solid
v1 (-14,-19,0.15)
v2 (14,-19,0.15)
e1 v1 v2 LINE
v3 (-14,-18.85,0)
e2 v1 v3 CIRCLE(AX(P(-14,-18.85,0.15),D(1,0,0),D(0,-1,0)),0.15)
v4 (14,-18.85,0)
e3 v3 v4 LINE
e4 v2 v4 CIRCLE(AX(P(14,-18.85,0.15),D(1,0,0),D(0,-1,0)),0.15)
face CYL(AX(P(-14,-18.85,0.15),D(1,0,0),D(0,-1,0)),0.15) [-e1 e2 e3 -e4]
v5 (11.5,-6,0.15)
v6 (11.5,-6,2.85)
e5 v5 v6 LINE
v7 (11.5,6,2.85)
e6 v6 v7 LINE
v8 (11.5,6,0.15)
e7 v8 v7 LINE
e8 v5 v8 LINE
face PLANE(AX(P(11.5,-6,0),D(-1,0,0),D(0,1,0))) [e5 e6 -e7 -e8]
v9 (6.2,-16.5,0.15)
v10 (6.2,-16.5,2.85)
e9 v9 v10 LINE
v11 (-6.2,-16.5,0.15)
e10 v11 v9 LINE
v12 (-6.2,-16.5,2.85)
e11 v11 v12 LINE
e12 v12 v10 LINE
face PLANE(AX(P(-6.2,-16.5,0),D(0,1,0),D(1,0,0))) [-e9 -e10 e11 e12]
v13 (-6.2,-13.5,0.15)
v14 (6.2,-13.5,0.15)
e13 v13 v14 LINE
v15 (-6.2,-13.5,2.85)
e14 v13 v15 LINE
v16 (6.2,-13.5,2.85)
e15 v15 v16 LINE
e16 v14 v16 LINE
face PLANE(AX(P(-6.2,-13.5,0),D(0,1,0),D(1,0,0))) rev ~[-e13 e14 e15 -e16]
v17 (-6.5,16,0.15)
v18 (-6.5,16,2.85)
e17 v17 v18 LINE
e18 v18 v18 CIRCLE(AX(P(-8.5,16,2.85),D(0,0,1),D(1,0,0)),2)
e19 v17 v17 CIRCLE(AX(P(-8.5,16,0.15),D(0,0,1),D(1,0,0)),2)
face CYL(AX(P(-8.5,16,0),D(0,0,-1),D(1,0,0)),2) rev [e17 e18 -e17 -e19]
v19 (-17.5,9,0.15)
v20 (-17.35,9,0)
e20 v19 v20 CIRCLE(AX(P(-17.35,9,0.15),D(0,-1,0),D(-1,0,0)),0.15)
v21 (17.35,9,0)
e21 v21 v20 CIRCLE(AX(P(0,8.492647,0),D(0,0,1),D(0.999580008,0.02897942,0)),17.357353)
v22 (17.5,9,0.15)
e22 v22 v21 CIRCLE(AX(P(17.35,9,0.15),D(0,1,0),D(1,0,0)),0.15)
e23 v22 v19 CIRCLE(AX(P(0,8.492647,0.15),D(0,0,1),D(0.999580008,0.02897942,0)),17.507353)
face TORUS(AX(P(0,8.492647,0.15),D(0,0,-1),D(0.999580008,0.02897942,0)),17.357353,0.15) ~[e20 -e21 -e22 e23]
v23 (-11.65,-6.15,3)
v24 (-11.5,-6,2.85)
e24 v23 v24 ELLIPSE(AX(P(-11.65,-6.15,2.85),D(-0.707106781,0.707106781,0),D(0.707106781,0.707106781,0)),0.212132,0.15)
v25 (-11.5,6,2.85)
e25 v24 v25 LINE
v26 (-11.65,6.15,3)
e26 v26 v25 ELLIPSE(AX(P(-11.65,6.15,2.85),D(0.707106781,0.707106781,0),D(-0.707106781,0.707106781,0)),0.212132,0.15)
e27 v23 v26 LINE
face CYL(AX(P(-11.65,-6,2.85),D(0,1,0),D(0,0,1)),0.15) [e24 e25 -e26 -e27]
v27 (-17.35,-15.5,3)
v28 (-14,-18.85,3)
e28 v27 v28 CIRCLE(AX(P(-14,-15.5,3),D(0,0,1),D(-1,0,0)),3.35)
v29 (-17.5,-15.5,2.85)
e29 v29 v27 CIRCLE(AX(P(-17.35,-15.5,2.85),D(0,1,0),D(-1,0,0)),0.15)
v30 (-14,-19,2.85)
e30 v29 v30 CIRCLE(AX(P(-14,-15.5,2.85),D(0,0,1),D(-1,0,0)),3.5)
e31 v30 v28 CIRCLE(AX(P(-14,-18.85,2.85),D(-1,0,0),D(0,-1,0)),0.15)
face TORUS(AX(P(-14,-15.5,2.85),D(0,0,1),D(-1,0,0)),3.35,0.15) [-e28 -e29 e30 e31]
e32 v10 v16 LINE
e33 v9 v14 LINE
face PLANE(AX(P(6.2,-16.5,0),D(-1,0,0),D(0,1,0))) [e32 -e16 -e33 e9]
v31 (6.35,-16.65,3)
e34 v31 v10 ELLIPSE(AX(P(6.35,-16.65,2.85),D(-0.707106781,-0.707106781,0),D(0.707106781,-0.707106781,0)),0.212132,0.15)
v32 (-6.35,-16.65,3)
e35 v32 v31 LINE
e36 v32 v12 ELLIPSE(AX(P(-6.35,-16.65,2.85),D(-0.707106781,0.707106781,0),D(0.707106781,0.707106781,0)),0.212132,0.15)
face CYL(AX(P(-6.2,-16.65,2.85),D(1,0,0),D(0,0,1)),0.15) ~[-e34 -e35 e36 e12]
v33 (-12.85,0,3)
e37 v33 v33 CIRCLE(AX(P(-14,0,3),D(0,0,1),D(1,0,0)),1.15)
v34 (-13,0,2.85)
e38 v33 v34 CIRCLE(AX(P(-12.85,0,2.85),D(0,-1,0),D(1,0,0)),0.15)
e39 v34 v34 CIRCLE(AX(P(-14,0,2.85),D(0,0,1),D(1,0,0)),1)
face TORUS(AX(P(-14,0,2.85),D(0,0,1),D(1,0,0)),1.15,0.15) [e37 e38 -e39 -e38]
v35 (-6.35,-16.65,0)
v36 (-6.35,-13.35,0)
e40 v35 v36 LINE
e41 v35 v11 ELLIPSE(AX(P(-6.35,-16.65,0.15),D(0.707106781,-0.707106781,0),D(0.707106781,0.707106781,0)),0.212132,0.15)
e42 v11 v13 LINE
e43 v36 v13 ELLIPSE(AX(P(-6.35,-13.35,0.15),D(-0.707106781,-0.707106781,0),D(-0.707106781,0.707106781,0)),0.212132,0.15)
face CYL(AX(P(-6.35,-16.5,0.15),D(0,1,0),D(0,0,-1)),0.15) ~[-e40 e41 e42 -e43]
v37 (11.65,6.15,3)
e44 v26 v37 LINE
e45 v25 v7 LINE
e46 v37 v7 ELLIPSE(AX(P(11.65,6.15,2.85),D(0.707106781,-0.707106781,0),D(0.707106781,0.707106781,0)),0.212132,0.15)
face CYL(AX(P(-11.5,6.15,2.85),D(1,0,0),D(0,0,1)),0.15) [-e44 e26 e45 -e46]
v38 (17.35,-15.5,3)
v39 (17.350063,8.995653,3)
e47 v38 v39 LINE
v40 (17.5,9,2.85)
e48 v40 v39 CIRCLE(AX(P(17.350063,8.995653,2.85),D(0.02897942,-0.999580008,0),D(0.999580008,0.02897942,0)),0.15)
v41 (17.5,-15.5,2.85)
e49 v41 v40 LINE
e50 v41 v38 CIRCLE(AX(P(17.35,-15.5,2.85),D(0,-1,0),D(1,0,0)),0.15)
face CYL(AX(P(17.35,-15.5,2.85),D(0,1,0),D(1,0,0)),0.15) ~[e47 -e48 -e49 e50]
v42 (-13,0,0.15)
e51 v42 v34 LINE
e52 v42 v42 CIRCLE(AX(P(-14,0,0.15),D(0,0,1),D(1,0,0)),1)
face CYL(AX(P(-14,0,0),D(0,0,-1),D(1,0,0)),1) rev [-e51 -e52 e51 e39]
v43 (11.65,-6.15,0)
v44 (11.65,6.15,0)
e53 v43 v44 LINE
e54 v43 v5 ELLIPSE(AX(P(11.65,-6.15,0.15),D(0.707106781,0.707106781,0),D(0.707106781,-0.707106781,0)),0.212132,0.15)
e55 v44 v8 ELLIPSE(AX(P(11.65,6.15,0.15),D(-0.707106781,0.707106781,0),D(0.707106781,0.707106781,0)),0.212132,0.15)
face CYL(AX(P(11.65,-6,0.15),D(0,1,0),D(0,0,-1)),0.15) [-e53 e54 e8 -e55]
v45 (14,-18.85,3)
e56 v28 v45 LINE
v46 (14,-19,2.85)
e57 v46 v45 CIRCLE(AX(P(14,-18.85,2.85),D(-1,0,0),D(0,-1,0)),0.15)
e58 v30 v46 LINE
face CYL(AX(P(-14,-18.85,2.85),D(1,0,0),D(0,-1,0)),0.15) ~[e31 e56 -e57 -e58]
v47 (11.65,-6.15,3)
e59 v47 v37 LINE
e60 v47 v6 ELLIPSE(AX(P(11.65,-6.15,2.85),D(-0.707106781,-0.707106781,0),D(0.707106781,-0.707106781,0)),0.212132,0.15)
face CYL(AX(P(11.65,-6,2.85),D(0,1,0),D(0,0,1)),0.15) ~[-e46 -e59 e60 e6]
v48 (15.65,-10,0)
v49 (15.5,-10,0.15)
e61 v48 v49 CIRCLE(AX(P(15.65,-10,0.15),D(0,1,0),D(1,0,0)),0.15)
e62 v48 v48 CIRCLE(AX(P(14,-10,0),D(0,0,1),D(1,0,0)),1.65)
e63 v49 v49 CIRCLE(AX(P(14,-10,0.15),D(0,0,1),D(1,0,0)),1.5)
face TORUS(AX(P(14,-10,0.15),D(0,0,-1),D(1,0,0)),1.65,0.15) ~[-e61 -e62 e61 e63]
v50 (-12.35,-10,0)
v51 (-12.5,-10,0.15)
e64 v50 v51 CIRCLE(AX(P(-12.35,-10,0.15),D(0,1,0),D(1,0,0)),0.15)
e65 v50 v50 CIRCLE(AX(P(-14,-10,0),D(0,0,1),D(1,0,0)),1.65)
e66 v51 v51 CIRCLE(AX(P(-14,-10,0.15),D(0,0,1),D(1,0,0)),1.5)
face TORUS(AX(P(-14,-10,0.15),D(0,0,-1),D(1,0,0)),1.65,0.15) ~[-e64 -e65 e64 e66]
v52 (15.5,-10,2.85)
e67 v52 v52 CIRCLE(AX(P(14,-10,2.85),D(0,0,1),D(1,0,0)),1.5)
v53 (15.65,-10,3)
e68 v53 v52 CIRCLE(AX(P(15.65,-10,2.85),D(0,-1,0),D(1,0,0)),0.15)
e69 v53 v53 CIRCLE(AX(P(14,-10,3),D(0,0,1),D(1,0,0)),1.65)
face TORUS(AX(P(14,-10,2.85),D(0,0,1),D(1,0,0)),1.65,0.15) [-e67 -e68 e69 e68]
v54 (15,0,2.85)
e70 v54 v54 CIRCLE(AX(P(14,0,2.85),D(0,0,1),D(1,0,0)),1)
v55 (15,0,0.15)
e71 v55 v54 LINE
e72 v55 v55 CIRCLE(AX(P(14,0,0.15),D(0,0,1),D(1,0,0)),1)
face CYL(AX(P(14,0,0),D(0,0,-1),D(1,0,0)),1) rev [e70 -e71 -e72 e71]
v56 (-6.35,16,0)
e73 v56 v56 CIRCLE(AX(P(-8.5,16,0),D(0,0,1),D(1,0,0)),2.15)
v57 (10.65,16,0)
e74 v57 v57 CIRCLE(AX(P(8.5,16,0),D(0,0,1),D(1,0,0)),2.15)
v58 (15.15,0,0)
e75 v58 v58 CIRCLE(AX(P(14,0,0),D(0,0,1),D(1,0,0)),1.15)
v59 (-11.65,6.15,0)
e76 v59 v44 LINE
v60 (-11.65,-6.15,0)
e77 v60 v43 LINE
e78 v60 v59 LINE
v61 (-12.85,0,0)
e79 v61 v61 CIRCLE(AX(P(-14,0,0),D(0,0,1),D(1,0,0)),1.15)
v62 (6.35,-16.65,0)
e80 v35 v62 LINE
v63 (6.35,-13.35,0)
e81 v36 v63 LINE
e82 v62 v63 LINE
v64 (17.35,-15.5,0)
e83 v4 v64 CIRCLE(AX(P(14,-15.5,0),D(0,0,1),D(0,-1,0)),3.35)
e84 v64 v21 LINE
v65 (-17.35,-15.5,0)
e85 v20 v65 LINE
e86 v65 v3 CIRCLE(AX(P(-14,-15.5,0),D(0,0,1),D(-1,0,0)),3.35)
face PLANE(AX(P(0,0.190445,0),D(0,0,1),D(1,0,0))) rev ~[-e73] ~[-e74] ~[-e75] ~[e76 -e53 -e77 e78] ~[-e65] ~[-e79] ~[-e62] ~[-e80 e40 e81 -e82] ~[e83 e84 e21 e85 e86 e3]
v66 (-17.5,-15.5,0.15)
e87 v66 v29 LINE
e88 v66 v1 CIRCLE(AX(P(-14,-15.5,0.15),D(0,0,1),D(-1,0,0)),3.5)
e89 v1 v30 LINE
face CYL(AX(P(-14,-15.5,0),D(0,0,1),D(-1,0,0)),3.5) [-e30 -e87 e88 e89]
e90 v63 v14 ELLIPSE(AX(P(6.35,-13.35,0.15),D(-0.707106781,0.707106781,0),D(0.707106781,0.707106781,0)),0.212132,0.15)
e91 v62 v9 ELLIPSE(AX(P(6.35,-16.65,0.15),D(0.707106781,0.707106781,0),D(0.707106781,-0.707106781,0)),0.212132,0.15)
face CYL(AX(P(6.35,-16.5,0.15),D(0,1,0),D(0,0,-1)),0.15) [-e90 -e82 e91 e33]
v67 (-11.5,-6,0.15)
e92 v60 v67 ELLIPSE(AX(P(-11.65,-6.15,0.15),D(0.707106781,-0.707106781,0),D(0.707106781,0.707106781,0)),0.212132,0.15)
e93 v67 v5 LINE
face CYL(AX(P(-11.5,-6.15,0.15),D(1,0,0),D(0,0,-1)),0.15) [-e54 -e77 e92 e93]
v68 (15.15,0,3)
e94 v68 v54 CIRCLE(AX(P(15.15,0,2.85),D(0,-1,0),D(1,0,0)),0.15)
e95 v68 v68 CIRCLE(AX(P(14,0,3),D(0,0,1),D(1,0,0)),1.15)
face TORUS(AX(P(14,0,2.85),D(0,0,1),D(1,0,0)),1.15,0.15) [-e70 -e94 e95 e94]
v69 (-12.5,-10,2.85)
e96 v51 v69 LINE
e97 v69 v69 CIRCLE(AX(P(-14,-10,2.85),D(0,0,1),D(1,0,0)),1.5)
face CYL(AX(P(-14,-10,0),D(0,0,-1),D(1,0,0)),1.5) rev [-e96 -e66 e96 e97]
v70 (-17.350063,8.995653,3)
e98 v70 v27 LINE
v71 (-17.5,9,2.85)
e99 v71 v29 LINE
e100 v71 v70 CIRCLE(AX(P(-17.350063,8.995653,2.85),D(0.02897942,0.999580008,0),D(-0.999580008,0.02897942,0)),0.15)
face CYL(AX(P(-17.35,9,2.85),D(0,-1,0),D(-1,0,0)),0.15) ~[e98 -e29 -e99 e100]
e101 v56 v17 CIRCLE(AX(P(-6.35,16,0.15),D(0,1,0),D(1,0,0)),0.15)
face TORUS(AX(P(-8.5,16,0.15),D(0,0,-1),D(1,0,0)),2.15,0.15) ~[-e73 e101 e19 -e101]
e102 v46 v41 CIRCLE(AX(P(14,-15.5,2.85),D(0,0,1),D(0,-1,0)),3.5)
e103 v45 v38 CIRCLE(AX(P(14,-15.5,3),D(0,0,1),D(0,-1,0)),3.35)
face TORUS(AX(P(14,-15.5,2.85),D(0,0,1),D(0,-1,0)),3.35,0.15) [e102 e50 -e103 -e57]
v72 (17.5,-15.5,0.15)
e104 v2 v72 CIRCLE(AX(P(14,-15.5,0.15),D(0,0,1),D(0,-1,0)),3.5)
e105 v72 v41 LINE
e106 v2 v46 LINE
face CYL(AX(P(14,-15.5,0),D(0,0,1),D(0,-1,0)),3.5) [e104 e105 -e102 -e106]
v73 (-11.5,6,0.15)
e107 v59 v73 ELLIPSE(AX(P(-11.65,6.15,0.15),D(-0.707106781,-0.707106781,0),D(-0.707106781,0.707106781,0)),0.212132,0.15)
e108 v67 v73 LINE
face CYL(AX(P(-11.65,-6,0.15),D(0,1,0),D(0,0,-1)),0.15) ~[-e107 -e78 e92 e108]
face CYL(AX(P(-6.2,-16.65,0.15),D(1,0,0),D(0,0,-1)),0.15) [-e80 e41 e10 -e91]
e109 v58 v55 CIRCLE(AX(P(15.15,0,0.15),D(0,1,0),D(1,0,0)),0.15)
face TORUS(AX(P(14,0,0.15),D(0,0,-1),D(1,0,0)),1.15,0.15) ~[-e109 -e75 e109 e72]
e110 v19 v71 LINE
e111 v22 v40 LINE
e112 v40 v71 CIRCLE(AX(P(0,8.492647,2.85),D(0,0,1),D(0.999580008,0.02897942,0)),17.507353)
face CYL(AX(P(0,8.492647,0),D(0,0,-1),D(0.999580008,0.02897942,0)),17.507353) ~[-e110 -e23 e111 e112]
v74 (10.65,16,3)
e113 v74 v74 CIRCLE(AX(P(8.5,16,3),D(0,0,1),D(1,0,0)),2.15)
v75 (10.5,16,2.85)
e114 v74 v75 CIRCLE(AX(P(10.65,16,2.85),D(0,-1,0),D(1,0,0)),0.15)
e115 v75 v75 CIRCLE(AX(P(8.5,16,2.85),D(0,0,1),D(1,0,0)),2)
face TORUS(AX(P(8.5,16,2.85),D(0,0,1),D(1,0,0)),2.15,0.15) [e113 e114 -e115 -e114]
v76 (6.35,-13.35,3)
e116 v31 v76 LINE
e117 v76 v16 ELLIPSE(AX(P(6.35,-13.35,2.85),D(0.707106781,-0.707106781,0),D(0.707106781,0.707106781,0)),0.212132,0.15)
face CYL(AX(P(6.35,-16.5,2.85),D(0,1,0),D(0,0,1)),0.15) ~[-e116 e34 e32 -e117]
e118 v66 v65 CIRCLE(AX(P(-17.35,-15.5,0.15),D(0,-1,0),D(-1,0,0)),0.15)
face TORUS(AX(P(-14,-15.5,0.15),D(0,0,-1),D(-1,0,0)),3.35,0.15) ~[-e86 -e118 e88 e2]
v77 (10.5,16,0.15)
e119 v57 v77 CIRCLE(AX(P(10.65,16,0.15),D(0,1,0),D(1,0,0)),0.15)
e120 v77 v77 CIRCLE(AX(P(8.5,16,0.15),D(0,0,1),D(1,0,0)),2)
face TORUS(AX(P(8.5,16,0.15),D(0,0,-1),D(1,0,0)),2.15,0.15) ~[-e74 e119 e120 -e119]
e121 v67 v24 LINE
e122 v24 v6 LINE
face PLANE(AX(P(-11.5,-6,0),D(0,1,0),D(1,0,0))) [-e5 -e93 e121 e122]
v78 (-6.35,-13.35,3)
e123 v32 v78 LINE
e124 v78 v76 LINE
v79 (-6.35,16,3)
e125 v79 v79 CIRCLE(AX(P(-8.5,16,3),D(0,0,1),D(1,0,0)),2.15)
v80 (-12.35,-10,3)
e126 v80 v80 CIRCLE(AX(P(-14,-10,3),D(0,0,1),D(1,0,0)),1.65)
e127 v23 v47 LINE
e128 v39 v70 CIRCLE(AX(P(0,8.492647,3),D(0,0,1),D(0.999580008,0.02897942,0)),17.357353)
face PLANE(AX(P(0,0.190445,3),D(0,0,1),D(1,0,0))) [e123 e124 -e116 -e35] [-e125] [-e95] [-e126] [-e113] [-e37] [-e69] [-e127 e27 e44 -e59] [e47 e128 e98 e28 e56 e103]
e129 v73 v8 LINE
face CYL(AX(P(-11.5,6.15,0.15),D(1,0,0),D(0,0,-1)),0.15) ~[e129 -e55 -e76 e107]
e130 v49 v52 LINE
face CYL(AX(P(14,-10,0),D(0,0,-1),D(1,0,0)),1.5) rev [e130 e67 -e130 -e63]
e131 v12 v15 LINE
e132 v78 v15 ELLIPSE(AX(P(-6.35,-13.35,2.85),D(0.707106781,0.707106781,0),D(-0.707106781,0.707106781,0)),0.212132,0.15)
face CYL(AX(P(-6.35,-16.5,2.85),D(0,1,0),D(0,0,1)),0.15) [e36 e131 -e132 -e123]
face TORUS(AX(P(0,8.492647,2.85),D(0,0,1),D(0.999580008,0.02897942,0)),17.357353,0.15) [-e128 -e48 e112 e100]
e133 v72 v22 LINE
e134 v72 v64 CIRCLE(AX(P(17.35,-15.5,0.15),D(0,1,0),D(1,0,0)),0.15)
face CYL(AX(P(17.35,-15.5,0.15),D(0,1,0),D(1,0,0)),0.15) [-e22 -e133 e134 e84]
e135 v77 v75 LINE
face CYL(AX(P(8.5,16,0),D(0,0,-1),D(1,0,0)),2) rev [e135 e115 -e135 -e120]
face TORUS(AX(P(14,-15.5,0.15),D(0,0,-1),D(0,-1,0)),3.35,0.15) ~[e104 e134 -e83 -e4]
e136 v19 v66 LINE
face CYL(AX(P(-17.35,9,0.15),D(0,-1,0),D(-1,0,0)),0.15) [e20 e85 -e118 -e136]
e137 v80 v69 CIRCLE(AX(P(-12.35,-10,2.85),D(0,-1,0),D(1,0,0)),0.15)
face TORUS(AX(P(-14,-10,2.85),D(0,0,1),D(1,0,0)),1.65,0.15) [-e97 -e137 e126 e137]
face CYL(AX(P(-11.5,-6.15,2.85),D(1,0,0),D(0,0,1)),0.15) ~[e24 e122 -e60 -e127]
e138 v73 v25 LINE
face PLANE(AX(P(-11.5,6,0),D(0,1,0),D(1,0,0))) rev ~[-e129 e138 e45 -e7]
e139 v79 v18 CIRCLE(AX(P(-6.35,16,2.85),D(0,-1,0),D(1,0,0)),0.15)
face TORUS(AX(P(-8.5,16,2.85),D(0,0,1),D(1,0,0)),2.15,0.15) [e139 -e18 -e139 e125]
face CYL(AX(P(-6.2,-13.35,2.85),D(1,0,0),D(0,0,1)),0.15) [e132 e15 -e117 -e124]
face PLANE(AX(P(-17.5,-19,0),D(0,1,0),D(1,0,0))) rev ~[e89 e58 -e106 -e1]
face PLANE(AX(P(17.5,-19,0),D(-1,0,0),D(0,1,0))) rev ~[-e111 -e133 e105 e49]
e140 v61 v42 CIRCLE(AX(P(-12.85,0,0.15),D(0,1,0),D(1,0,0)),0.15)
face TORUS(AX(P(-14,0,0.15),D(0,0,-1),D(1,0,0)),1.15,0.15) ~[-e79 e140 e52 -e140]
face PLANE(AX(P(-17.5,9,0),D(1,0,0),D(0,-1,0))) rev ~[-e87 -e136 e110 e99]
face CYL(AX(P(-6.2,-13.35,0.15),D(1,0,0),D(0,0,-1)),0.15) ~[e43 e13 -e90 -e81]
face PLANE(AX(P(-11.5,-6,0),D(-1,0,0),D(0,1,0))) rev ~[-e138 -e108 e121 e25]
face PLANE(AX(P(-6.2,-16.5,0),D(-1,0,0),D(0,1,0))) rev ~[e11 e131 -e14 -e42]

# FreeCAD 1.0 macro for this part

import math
import FreeCAD as App
import Part
import Sketcher

V = App.Vector


def edges_at(feature, points):
    """Names of the edges that pass closest to the given points."""
    edges = feature.Shape.Edges
    near = lambda p: min(range(len(edges)), key=lambda i: edges[i].distToShape(Part.Vertex(*p))[0])
    return sorted({f"Edge{near(p) + 1}" for p in points})

doc = App.newDocument("Part")
body = doc.addObject("PartDesign::Body", "Body")

sketch1 = doc.addObject("Sketcher::SketchObject", "Sketch")
body.addObject(sketch1)
sketch1.AttachmentSupport = (doc.XY_Plane, [""])
sketch1.MapMode = "FlatFace"
sketch1.addGeometry(Part.LineSegment(V(-17.5, 9, 0), V(-17.5, -19, 0)), False)
sketch1.addGeometry(Part.LineSegment(V(-17.5, -19, 0), V(17.5, -19, 0)), False)
sketch1.addGeometry(Part.LineSegment(V(17.5, -19, 0), V(17.5, 9, 0)), False)
sketch1.addGeometry(Part.ArcOfCircle(Part.Circle(V(0, 8.492647, 0), V(0, 0, 1), 17.507353), math.radians(1.660631), math.radians(178.339369)), False)
sketch1.addGeometry(Part.Circle(V(-14, -10, 0), V(0, 0, 1), 1.5), False)
sketch1.addGeometry(Part.Circle(V(-14, 0, 0), V(0, 0, 1), 1), False)
sketch1.addGeometry(Part.LineSegment(V(6.2, -16.5, 0), V(-6.2, -16.5, 0)), False)
sketch1.addGeometry(Part.LineSegment(V(-6.2, -16.5, 0), V(-6.2, -13.5, 0)), False)
sketch1.addGeometry(Part.LineSegment(V(-6.2, -13.5, 0), V(6.2, -13.5, 0)), False)
sketch1.addGeometry(Part.LineSegment(V(6.2, -13.5, 0), V(6.2, -16.5, 0)), False)
sketch1.addGeometry(Part.Circle(V(14, -10, 0), V(0, 0, 1), 1.5), False)
sketch1.addGeometry(Part.LineSegment(V(11.5, -6, 0), V(-11.5, -6, 0)), False)
sketch1.addGeometry(Part.LineSegment(V(-11.5, -6, 0), V(-11.5, 6, 0)), False)
sketch1.addGeometry(Part.LineSegment(V(-11.5, 6, 0), V(11.5, 6, 0)), False)
sketch1.addGeometry(Part.LineSegment(V(11.5, 6, 0), V(11.5, -6, 0)), False)
sketch1.addGeometry(Part.Circle(V(14, 0, 0), V(0, 0, 1), 1), False)
sketch1.addGeometry(Part.Circle(V(-8.5, 16, 0), V(0, 0, 1), 2), False)
sketch1.addGeometry(Part.Circle(V(8.5, 16, 0), V(0, 0, 1), 2), False)
sketch1.addConstraint(Sketcher.Constraint("Coincident", 0, 2, 1, 1))
sketch1.addConstraint(Sketcher.Constraint("Coincident", 1, 2, 2, 1))
sketch1.addConstraint(Sketcher.Constraint("Coincident", 2, 2, 3, 1))
sketch1.addConstraint(Sketcher.Constraint("Coincident", 3, 2, 0, 1))
sketch1.addConstraint(Sketcher.Constraint("Coincident", 6, 2, 7, 1))
sketch1.addConstraint(Sketcher.Constraint("Coincident", 7, 2, 8, 1))
sketch1.addConstraint(Sketcher.Constraint("Coincident", 8, 2, 9, 1))
sketch1.addConstraint(Sketcher.Constraint("Coincident", 9, 2, 6, 1))
sketch1.addConstraint(Sketcher.Constraint("Coincident", 11, 2, 12, 1))
sketch1.addConstraint(Sketcher.Constraint("Coincident", 12, 2, 13, 1))
sketch1.addConstraint(Sketcher.Constraint("Coincident", 13, 2, 14, 1))
sketch1.addConstraint(Sketcher.Constraint("Coincident", 14, 2, 11, 1))
sketch1.addConstraint(Sketcher.Constraint("Vertical", 0))
sketch1.addConstraint(Sketcher.Constraint("Horizontal", 1))
sketch1.addConstraint(Sketcher.Constraint("Vertical", 2))
sketch1.addConstraint(Sketcher.Constraint("Horizontal", 6))
sketch1.addConstraint(Sketcher.Constraint("Vertical", 7))
sketch1.addConstraint(Sketcher.Constraint("Horizontal", 8))
sketch1.addConstraint(Sketcher.Constraint("Vertical", 9))
sketch1.addConstraint(Sketcher.Constraint("Horizontal", 11))
sketch1.addConstraint(Sketcher.Constraint("Vertical", 12))
sketch1.addConstraint(Sketcher.Constraint("Horizontal", 13))
sketch1.addConstraint(Sketcher.Constraint("Vertical", 14))
sketch1.addConstraint(Sketcher.Constraint("Equal", 4, 10))
sketch1.addConstraint(Sketcher.Constraint("Equal", 5, 15))
sketch1.addConstraint(Sketcher.Constraint("Equal", 16, 17))
sketch1.addConstraint(Sketcher.Constraint("Symmetric", 5, 3, 15, 3, -1, 1))
sketch1.addConstraint(Sketcher.Constraint("Symmetric", 11, 2, 13, 2, -1, 1))
sketch1.addConstraint(Sketcher.Constraint("Symmetric", 4, 3, 10, 3, -2))
sketch1.addConstraint(Sketcher.Constraint("Symmetric", 16, 3, 17, 3, -2))
sketch1.addConstraint(Sketcher.Constraint("Symmetric", 2, 2, 3, 2, -2))
sketch1.addConstraint(Sketcher.Constraint("PointOnObject", 5, 3, -1))
sketch1.addConstraint(Sketcher.Constraint("Vertical", 4, 3, 5, 3))
sketch1.addConstraint(Sketcher.Constraint("Diameter", 4, 3.0))
sketch1.addConstraint(Sketcher.Constraint("Diameter", 5, 2.0))
sketch1.addConstraint(Sketcher.Constraint("Diameter", 16, 4.0))
sketch1.addConstraint(Sketcher.Constraint("DistanceX", 1, 1, 1, 2, 35.0))
sketch1.addConstraint(Sketcher.Constraint("DistanceX", 11, 2, 11, 1, 23.0))
sketch1.addConstraint(Sketcher.Constraint("DistanceY", 0, 2, 0, 1, 28.0))
sketch1.addConstraint(Sketcher.Constraint("DistanceY", 7, 1, 7, 2, 3.0))
sketch1.addConstraint(Sketcher.Constraint("DistanceY", 12, 1, 12, 2, 12.0))
sketch1.addConstraint(Sketcher.Constraint("DistanceX", 6, 2, 6, 1, 12.4))
sketch1.addConstraint(Sketcher.Constraint("DistanceX", 4, 3, -1, 1, 14.0))
sketch1.addConstraint(Sketcher.Constraint("DistanceY", 4, 3, -1, 1, 10.0))
sketch1.addConstraint(Sketcher.Constraint("DistanceY", -1, 1, 16, 3, 16.0))
sketch1.addConstraint(Sketcher.Constraint("DistanceY", 0, 2, -1, 1, 19.0))
sketch1.addConstraint(Sketcher.Constraint("DistanceX", 16, 3, 17, 3, 17.0))
sketch1.addConstraint(Sketcher.Constraint("DistanceX", 6, 2, -1, 1, 6.2))
sketch1.addConstraint(Sketcher.Constraint("DistanceY", 6, 2, -1, 1, 16.5))
sketch1.addConstraint(Sketcher.Constraint("Radius", 3, 17.507353))
pad1 = doc.addObject("PartDesign::Pad", "Pad")
body.addObject(pad1)
pad1.Profile = sketch1
pad1.Length = 3
doc.recompute()

fillet = doc.addObject("PartDesign::Fillet", "Fillet")
body.addObject(fillet)
fillet.Base = (pad1, edges_at(pad1, [(17.5, -19, 1.5), (-17.5, -19, 1.5)]))
fillet.Radius = 3.5
doc.recompute()

fillet2 = doc.addObject("PartDesign::Fillet", "Fillet001")
body.addObject(fillet2)
fillet2.Base = (fillet, edges_at(fillet, [
    (-11.5, 0, 0),
    (0, -6, 0),
    (11.5, 0, 0),
    (0, 6, 0),
    (-11.5, 0, 3),
    (0, -6, 3),
    (11.5, 0, 3),
    (0, 6, 3),
    (-15, 0, 0),
    (-15, 0, 3),
    (-15.5, -10, 0),
    (-15.5, -10, 3),
    (-6.2, -15, 0),
    (0, -16.5, 0),
    (6.2, -15, 0),
    (0, -13.5, 0),
    (-6.2, -15, 3),
    (0, -16.5, 3),
    (6.2, -15, 3),
    (0, -13.5, 3),
    (0, 26, 3),
    (-10.5, 16, 0),
    (-10.5, 16, 3),
    (12.5, -10, 0),
    (12.5, -10, 3),
    (-17.5, -3.25, 0),
    (13, 0, 0),
    (13, 0, 3),
    (0, 26, 0),
    (6.5, 16, 0),
    (6.5, 16, 3),
    (17.5, -3.25, 0),
    (17.5, -3.25, 3),
    (0, -19, 0),
    (-17.5, -3.25, 3),
    (-16.475, -17.975, 0),
    (16.475, -17.975, 0),
    (0, -19, 3),
    (-16.475, -17.975, 3),
    (16.475, -17.975, 3),
]))
fillet2.Radius = 0.15

doc.recompute()
